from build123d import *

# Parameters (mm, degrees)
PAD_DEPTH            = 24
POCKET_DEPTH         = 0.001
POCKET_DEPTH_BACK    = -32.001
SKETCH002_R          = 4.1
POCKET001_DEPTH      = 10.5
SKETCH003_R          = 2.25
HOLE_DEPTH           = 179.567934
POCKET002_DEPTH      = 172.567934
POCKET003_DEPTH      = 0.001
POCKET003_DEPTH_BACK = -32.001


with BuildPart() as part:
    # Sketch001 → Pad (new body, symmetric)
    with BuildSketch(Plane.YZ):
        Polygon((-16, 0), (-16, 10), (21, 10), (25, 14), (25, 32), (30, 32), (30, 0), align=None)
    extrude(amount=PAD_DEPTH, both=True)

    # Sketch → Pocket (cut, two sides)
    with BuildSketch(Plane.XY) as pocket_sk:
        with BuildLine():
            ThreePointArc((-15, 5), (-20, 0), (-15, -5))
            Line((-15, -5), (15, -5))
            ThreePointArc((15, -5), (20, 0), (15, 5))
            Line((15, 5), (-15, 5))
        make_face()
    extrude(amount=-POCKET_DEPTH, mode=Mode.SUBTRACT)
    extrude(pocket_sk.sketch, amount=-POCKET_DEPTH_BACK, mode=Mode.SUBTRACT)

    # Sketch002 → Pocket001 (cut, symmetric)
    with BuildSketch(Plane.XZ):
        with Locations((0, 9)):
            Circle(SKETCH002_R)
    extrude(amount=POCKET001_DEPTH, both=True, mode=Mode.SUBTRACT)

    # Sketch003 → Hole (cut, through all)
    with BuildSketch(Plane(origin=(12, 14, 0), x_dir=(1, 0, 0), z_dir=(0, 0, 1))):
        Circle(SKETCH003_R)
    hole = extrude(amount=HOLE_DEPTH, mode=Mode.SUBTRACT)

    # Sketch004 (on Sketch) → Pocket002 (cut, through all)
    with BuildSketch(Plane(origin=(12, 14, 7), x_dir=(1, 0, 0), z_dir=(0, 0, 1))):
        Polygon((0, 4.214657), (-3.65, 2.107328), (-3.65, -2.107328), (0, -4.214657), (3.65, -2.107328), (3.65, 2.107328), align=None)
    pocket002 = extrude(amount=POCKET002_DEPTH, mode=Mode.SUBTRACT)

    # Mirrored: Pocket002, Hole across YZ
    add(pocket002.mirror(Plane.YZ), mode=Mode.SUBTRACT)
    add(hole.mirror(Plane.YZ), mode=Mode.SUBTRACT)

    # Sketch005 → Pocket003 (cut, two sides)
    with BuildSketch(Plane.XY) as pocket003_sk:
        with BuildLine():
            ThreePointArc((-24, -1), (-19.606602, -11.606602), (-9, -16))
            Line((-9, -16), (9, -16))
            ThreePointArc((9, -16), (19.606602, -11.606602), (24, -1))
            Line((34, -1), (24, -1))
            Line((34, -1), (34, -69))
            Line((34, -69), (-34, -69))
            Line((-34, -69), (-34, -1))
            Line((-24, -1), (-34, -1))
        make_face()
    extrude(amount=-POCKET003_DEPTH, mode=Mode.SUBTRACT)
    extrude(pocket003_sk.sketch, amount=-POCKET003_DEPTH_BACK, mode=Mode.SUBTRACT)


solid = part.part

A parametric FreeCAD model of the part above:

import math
import FreeCAD as App
import Part
import Sketcher
Q = App.Units.Quantity


def add_polygon(sketch, points):
    """Adds a closed chain of lines whose ends are joined by coincident constraints."""
    first, n = sketch.GeometryCount, len(points)
    for a, b in zip(points, points[1:] + points[:1]):
        sketch.addGeometry(Part.LineSegment(App.Vector(*a, 0), App.Vector(*b, 0)), False)
    for i in range(n):
        sketch.addConstraint(Sketcher.Constraint("Coincident", first + i, 2, first + (i + 1) % n, 1))

doc = App.newDocument("Part")
body = doc.addObject("PartDesign::Body", "Body")

# Sketch on YZ plane
sketch1 = body.newObject("Sketcher::SketchObject", "Sketch")
sketch1.AttachmentSupport = (doc.getObject("YZ_Plane"), [""])
sketch1.MapMode = "FlatFace"
add_polygon(sketch1, [(-16, 10), (-16, 0), (30, 0), (30, 32), (25, 32), (25, 14), (21, 10)])  # lines 0-6
sketch1.addConstraint([
    Sketcher.Constraint("Vertical", 0),
    Sketcher.Constraint("Horizontal", 1),
    Sketcher.Constraint("Vertical", 2),
    Sketcher.Constraint("Horizontal", 3),
    Sketcher.Constraint("Vertical", 4),
    Sketcher.Constraint("Horizontal", 6),
    Sketcher.Constraint("PointOnObject", 0, 2, -1),
    Sketcher.Constraint("DistanceX", 1, 1, 1, 2, 46.0),
    Sketcher.Constraint("DistanceX", 3, 2, 3, 1, 5.0),
    Sketcher.Constraint("DistanceX", 6, 2, 6, 1, 37.0),
    Sketcher.Constraint("DistanceY", 0, 2, 0, 1, 10.0),
    Sketcher.Constraint("DistanceY", 2, 1, 2, 2, 32.0),
    Sketcher.Constraint("DistanceY", 4, 2, 4, 1, 18.0),
    Sketcher.Constraint("DistanceX", 0, 2, -1, 1, 16.0),
])
pad1 = body.newObject("PartDesign::Pad", "Pad")
pad1.Profile = sketch1
pad1.Length = 48
pad1.Midplane = True

# Sketch on XY plane
sketch2 = body.newObject("Sketcher::SketchObject", "Sketch001")
sketch2.AttachmentSupport = (doc.getObject("XY_Plane"), [""])
sketch2.MapMode = "FlatFace"
sketch2.addGeometry([
    Part.ArcOfCircle(Part.Circle(App.Vector(-15, 0, 0), App.Vector(0, 0, 1), 5), math.radians(90), math.radians(270)),
    Part.LineSegment(App.Vector(-15, -5, 0), App.Vector(15, -5, 0)),
    Part.ArcOfCircle(Part.Circle(App.Vector(15, 0, 0), App.Vector(0, 0, 1), 5), math.radians(-90), math.radians(90)),
    Part.LineSegment(App.Vector(15, 5, 0), App.Vector(-15, 5, 0)),
], False)
sketch2.addConstraint([
    Sketcher.Constraint("Tangent", 0, 2, 1, 1),
    Sketcher.Constraint("Tangent", 1, 2, 2, 1),
    Sketcher.Constraint("Tangent", 2, 2, 3, 1),
    Sketcher.Constraint("Tangent", 3, 2, 0, 1),
    Sketcher.Constraint("Horizontal", 1),
    Sketcher.Constraint("Horizontal", 3),
    Sketcher.Constraint("Symmetric", 0, 3, 2, 3, -1, 1),
    Sketcher.Constraint("Radius", 0, 5.0),
    Sketcher.Constraint("DistanceX", 1, 1, 1, 2, 30.0),
])
pocket1 = body.newObject("PartDesign::Pocket", "Pocket")
pocket1.Profile = sketch2
pocket1.Type = "ThroughAll"
pocket1.Midplane = True

# Sketch on XZ plane
sketch3 = body.newObject("Sketcher::SketchObject", "Sketch002")
sketch3.AttachmentSupport = (doc.getObject("XZ_Plane"), [""])
sketch3.MapMode = "FlatFace"
sketch3.addGeometry(Part.Circle(App.Vector(0, 9, 0), App.Vector(0, 0, 1), 4.1), False)
sketch3.addConstraint([
    Sketcher.Constraint("PointOnObject", 0, 3, -2),
    Sketcher.Constraint("Diameter", 0, 8.2),
    Sketcher.Constraint("DistanceY", -1, 1, 0, 3, 9.0),
])
pocket2 = body.newObject("PartDesign::Pocket", "Pocket001")
pocket2.Profile = sketch3
pocket2.Length = 21
pocket2.Midplane = True

# Sketch on XY plane
sketch4 = body.newObject("Sketcher::SketchObject", "Sketch003")
sketch4.AttachmentSupport = (doc.getObject("XY_Plane"), [""])
sketch4.MapMode = "FlatFace"
sketch4.addGeometry(Part.Circle(App.Vector(12, 14, 0), App.Vector(0, 0, 1), 2.2), False)
sketch4.addConstraint([
    Sketcher.Constraint("Diameter", 0, 4.5),
    Sketcher.Constraint("DistanceX", -1, 1, 0, 3, 12.0),
    Sketcher.Constraint("DistanceY", -1, 1, 0, 3, 14.0),
])
pocket3 = body.newObject("PartDesign::Pocket", "Pocket002")
pocket3.Profile = sketch4
pocket3.Type = "ThroughAll"
pocket3.Reversed = True

# Sketch on XY plane
sketch5 = body.newObject("Sketcher::SketchObject", "Sketch004")
sketch5.AttachmentSupport = (doc.getObject("XY_Plane"), [""])
sketch5.MapMode = "FlatFace"
sketch5.AttachmentOffset = App.Placement(App.Vector(0, 0, 7), App.Rotation())
add_polygon(sketch5, [(12, 18.2), (8.3, 16.1), (8.3, 11.9), (12, 9.8), (15.7, 11.9), (15.7, 16.1)])  # lines 0-5
sketch5.addConstraint([
    Sketcher.Constraint("Vertical", 1),
    Sketcher.Constraint("Vertical", 4),
    Sketcher.Constraint("Parallel", 0, 3),
    Sketcher.Constraint("Parallel", 2, 5),
    Sketcher.Constraint("Horizontal", 1, 2, 3, 2),
    Sketcher.Constraint("Horizontal", 0, 2, 4, 2),
    Sketcher.Constraint("Vertical", 2, 2, 5, 2),
    Sketcher.Constraint("Angle", 0, Q("-149.999994 deg")),
    Sketcher.Constraint("DistanceX", -1, 1, 2, 2, 12.0),
    Sketcher.Constraint("DistanceX", 1, 2, 3, 2, 7.3),
    Sketcher.Constraint("DistanceY", 1, 2, 1, 1, 4.214656),
    Sketcher.Constraint("DistanceY", -1, 1, 1, 2, 11.892672),
])
pocket4 = body.newObject("PartDesign::Pocket", "Pocket003")
pocket4.Profile = sketch5
pocket4.Type = "ThroughAll"
pocket4.Reversed = True
doc.recompute()

mirrored = body.newObject("PartDesign::Mirrored", "Mirrored")
mirrored.Originals = [pocket4, pocket3]
mirrored.MirrorPlane = (doc.getObject("YZ_Plane"), [""])
body.Tip = mirrored

# Sketch on XY plane
sketch6 = body.newObject("Sketcher::SketchObject", "Sketch005")
sketch6.AttachmentSupport = (doc.getObject("XY_Plane"), [""])
sketch6.MapMode = "FlatFace"
sketch6.addGeometry([
    Part.ArcOfCircle(Part.Circle(App.Vector(-9, -1, 0), App.Vector(0, 0, 1), 15), math.radians(180), math.radians(270)),  # 0
    Part.LineSegment(App.Vector(-24, -1, 0), App.Vector(-34, -1, 0)),  # 1
    Part.LineSegment(App.Vector(-34, -1, 0), App.Vector(-34, -69, 0)),  # 2
    Part.LineSegment(App.Vector(-34, -69, 0), App.Vector(34, -69, 0)),  # 3
    Part.LineSegment(App.Vector(34, -69, 0), App.Vector(34, -1, 0)),  # 4
    Part.LineSegment(App.Vector(34, -1, 0), App.Vector(24, -1, 0)),  # 5
    Part.ArcOfCircle(Part.Circle(App.Vector(9, -1, 0), App.Vector(0, 0, 1), 15), math.radians(-90), math.radians(0)),  # 6
    Part.LineSegment(App.Vector(9, -16, 0), App.Vector(-9, -16, 0)),  # 7
], False)
sketch6.addConstraint([
    Sketcher.Constraint("Coincident", 0, 1, 1, 1),
    Sketcher.Constraint("Coincident", 1, 2, 2, 1),
    Sketcher.Constraint("Coincident", 2, 2, 3, 1),
    Sketcher.Constraint("Coincident", 3, 2, 4, 1),
    Sketcher.Constraint("Coincident", 4, 2, 5, 1),
    Sketcher.Constraint("Coincident", 5, 2, 6, 2),
    Sketcher.Constraint("Tangent", 6, 1, 7, 1),
    Sketcher.Constraint("Tangent", 7, 2, 0, 2),
    Sketcher.Constraint("Horizontal", 1),
    Sketcher.Constraint("Vertical", 2),
    Sketcher.Constraint("Horizontal", 3),
    Sketcher.Constraint("Vertical", 4),
    Sketcher.Constraint("Horizontal", 5),
    Sketcher.Constraint("Horizontal", 7),
    Sketcher.Constraint("Equal", 0, 6),
    Sketcher.Constraint("Symmetric", 1, 2, 4, 2, -2),
    Sketcher.Constraint("Horizontal", 6, 3, 0, 1),
    Sketcher.Constraint("Equal", 1, 5),
    Sketcher.Constraint("Equal", 3, 2),
    Sketcher.Constraint("Radius", 0, 14.999999),
    Sketcher.Constraint("DistanceX", 1, 2, 1, 1, 10.0),
    Sketcher.Constraint("DistanceX", 3, 1, 3, 2, 68.0),
    Sketcher.Constraint("DistanceY", 0, 3, -1, 1, 1.000001),
])
pocket5 = body.newObject("PartDesign::Pocket", "Pocket004")
pocket5.Profile = sketch6
pocket5.Type = "ThroughAll"
pocket5.Midplane = True

doc.recompute()
